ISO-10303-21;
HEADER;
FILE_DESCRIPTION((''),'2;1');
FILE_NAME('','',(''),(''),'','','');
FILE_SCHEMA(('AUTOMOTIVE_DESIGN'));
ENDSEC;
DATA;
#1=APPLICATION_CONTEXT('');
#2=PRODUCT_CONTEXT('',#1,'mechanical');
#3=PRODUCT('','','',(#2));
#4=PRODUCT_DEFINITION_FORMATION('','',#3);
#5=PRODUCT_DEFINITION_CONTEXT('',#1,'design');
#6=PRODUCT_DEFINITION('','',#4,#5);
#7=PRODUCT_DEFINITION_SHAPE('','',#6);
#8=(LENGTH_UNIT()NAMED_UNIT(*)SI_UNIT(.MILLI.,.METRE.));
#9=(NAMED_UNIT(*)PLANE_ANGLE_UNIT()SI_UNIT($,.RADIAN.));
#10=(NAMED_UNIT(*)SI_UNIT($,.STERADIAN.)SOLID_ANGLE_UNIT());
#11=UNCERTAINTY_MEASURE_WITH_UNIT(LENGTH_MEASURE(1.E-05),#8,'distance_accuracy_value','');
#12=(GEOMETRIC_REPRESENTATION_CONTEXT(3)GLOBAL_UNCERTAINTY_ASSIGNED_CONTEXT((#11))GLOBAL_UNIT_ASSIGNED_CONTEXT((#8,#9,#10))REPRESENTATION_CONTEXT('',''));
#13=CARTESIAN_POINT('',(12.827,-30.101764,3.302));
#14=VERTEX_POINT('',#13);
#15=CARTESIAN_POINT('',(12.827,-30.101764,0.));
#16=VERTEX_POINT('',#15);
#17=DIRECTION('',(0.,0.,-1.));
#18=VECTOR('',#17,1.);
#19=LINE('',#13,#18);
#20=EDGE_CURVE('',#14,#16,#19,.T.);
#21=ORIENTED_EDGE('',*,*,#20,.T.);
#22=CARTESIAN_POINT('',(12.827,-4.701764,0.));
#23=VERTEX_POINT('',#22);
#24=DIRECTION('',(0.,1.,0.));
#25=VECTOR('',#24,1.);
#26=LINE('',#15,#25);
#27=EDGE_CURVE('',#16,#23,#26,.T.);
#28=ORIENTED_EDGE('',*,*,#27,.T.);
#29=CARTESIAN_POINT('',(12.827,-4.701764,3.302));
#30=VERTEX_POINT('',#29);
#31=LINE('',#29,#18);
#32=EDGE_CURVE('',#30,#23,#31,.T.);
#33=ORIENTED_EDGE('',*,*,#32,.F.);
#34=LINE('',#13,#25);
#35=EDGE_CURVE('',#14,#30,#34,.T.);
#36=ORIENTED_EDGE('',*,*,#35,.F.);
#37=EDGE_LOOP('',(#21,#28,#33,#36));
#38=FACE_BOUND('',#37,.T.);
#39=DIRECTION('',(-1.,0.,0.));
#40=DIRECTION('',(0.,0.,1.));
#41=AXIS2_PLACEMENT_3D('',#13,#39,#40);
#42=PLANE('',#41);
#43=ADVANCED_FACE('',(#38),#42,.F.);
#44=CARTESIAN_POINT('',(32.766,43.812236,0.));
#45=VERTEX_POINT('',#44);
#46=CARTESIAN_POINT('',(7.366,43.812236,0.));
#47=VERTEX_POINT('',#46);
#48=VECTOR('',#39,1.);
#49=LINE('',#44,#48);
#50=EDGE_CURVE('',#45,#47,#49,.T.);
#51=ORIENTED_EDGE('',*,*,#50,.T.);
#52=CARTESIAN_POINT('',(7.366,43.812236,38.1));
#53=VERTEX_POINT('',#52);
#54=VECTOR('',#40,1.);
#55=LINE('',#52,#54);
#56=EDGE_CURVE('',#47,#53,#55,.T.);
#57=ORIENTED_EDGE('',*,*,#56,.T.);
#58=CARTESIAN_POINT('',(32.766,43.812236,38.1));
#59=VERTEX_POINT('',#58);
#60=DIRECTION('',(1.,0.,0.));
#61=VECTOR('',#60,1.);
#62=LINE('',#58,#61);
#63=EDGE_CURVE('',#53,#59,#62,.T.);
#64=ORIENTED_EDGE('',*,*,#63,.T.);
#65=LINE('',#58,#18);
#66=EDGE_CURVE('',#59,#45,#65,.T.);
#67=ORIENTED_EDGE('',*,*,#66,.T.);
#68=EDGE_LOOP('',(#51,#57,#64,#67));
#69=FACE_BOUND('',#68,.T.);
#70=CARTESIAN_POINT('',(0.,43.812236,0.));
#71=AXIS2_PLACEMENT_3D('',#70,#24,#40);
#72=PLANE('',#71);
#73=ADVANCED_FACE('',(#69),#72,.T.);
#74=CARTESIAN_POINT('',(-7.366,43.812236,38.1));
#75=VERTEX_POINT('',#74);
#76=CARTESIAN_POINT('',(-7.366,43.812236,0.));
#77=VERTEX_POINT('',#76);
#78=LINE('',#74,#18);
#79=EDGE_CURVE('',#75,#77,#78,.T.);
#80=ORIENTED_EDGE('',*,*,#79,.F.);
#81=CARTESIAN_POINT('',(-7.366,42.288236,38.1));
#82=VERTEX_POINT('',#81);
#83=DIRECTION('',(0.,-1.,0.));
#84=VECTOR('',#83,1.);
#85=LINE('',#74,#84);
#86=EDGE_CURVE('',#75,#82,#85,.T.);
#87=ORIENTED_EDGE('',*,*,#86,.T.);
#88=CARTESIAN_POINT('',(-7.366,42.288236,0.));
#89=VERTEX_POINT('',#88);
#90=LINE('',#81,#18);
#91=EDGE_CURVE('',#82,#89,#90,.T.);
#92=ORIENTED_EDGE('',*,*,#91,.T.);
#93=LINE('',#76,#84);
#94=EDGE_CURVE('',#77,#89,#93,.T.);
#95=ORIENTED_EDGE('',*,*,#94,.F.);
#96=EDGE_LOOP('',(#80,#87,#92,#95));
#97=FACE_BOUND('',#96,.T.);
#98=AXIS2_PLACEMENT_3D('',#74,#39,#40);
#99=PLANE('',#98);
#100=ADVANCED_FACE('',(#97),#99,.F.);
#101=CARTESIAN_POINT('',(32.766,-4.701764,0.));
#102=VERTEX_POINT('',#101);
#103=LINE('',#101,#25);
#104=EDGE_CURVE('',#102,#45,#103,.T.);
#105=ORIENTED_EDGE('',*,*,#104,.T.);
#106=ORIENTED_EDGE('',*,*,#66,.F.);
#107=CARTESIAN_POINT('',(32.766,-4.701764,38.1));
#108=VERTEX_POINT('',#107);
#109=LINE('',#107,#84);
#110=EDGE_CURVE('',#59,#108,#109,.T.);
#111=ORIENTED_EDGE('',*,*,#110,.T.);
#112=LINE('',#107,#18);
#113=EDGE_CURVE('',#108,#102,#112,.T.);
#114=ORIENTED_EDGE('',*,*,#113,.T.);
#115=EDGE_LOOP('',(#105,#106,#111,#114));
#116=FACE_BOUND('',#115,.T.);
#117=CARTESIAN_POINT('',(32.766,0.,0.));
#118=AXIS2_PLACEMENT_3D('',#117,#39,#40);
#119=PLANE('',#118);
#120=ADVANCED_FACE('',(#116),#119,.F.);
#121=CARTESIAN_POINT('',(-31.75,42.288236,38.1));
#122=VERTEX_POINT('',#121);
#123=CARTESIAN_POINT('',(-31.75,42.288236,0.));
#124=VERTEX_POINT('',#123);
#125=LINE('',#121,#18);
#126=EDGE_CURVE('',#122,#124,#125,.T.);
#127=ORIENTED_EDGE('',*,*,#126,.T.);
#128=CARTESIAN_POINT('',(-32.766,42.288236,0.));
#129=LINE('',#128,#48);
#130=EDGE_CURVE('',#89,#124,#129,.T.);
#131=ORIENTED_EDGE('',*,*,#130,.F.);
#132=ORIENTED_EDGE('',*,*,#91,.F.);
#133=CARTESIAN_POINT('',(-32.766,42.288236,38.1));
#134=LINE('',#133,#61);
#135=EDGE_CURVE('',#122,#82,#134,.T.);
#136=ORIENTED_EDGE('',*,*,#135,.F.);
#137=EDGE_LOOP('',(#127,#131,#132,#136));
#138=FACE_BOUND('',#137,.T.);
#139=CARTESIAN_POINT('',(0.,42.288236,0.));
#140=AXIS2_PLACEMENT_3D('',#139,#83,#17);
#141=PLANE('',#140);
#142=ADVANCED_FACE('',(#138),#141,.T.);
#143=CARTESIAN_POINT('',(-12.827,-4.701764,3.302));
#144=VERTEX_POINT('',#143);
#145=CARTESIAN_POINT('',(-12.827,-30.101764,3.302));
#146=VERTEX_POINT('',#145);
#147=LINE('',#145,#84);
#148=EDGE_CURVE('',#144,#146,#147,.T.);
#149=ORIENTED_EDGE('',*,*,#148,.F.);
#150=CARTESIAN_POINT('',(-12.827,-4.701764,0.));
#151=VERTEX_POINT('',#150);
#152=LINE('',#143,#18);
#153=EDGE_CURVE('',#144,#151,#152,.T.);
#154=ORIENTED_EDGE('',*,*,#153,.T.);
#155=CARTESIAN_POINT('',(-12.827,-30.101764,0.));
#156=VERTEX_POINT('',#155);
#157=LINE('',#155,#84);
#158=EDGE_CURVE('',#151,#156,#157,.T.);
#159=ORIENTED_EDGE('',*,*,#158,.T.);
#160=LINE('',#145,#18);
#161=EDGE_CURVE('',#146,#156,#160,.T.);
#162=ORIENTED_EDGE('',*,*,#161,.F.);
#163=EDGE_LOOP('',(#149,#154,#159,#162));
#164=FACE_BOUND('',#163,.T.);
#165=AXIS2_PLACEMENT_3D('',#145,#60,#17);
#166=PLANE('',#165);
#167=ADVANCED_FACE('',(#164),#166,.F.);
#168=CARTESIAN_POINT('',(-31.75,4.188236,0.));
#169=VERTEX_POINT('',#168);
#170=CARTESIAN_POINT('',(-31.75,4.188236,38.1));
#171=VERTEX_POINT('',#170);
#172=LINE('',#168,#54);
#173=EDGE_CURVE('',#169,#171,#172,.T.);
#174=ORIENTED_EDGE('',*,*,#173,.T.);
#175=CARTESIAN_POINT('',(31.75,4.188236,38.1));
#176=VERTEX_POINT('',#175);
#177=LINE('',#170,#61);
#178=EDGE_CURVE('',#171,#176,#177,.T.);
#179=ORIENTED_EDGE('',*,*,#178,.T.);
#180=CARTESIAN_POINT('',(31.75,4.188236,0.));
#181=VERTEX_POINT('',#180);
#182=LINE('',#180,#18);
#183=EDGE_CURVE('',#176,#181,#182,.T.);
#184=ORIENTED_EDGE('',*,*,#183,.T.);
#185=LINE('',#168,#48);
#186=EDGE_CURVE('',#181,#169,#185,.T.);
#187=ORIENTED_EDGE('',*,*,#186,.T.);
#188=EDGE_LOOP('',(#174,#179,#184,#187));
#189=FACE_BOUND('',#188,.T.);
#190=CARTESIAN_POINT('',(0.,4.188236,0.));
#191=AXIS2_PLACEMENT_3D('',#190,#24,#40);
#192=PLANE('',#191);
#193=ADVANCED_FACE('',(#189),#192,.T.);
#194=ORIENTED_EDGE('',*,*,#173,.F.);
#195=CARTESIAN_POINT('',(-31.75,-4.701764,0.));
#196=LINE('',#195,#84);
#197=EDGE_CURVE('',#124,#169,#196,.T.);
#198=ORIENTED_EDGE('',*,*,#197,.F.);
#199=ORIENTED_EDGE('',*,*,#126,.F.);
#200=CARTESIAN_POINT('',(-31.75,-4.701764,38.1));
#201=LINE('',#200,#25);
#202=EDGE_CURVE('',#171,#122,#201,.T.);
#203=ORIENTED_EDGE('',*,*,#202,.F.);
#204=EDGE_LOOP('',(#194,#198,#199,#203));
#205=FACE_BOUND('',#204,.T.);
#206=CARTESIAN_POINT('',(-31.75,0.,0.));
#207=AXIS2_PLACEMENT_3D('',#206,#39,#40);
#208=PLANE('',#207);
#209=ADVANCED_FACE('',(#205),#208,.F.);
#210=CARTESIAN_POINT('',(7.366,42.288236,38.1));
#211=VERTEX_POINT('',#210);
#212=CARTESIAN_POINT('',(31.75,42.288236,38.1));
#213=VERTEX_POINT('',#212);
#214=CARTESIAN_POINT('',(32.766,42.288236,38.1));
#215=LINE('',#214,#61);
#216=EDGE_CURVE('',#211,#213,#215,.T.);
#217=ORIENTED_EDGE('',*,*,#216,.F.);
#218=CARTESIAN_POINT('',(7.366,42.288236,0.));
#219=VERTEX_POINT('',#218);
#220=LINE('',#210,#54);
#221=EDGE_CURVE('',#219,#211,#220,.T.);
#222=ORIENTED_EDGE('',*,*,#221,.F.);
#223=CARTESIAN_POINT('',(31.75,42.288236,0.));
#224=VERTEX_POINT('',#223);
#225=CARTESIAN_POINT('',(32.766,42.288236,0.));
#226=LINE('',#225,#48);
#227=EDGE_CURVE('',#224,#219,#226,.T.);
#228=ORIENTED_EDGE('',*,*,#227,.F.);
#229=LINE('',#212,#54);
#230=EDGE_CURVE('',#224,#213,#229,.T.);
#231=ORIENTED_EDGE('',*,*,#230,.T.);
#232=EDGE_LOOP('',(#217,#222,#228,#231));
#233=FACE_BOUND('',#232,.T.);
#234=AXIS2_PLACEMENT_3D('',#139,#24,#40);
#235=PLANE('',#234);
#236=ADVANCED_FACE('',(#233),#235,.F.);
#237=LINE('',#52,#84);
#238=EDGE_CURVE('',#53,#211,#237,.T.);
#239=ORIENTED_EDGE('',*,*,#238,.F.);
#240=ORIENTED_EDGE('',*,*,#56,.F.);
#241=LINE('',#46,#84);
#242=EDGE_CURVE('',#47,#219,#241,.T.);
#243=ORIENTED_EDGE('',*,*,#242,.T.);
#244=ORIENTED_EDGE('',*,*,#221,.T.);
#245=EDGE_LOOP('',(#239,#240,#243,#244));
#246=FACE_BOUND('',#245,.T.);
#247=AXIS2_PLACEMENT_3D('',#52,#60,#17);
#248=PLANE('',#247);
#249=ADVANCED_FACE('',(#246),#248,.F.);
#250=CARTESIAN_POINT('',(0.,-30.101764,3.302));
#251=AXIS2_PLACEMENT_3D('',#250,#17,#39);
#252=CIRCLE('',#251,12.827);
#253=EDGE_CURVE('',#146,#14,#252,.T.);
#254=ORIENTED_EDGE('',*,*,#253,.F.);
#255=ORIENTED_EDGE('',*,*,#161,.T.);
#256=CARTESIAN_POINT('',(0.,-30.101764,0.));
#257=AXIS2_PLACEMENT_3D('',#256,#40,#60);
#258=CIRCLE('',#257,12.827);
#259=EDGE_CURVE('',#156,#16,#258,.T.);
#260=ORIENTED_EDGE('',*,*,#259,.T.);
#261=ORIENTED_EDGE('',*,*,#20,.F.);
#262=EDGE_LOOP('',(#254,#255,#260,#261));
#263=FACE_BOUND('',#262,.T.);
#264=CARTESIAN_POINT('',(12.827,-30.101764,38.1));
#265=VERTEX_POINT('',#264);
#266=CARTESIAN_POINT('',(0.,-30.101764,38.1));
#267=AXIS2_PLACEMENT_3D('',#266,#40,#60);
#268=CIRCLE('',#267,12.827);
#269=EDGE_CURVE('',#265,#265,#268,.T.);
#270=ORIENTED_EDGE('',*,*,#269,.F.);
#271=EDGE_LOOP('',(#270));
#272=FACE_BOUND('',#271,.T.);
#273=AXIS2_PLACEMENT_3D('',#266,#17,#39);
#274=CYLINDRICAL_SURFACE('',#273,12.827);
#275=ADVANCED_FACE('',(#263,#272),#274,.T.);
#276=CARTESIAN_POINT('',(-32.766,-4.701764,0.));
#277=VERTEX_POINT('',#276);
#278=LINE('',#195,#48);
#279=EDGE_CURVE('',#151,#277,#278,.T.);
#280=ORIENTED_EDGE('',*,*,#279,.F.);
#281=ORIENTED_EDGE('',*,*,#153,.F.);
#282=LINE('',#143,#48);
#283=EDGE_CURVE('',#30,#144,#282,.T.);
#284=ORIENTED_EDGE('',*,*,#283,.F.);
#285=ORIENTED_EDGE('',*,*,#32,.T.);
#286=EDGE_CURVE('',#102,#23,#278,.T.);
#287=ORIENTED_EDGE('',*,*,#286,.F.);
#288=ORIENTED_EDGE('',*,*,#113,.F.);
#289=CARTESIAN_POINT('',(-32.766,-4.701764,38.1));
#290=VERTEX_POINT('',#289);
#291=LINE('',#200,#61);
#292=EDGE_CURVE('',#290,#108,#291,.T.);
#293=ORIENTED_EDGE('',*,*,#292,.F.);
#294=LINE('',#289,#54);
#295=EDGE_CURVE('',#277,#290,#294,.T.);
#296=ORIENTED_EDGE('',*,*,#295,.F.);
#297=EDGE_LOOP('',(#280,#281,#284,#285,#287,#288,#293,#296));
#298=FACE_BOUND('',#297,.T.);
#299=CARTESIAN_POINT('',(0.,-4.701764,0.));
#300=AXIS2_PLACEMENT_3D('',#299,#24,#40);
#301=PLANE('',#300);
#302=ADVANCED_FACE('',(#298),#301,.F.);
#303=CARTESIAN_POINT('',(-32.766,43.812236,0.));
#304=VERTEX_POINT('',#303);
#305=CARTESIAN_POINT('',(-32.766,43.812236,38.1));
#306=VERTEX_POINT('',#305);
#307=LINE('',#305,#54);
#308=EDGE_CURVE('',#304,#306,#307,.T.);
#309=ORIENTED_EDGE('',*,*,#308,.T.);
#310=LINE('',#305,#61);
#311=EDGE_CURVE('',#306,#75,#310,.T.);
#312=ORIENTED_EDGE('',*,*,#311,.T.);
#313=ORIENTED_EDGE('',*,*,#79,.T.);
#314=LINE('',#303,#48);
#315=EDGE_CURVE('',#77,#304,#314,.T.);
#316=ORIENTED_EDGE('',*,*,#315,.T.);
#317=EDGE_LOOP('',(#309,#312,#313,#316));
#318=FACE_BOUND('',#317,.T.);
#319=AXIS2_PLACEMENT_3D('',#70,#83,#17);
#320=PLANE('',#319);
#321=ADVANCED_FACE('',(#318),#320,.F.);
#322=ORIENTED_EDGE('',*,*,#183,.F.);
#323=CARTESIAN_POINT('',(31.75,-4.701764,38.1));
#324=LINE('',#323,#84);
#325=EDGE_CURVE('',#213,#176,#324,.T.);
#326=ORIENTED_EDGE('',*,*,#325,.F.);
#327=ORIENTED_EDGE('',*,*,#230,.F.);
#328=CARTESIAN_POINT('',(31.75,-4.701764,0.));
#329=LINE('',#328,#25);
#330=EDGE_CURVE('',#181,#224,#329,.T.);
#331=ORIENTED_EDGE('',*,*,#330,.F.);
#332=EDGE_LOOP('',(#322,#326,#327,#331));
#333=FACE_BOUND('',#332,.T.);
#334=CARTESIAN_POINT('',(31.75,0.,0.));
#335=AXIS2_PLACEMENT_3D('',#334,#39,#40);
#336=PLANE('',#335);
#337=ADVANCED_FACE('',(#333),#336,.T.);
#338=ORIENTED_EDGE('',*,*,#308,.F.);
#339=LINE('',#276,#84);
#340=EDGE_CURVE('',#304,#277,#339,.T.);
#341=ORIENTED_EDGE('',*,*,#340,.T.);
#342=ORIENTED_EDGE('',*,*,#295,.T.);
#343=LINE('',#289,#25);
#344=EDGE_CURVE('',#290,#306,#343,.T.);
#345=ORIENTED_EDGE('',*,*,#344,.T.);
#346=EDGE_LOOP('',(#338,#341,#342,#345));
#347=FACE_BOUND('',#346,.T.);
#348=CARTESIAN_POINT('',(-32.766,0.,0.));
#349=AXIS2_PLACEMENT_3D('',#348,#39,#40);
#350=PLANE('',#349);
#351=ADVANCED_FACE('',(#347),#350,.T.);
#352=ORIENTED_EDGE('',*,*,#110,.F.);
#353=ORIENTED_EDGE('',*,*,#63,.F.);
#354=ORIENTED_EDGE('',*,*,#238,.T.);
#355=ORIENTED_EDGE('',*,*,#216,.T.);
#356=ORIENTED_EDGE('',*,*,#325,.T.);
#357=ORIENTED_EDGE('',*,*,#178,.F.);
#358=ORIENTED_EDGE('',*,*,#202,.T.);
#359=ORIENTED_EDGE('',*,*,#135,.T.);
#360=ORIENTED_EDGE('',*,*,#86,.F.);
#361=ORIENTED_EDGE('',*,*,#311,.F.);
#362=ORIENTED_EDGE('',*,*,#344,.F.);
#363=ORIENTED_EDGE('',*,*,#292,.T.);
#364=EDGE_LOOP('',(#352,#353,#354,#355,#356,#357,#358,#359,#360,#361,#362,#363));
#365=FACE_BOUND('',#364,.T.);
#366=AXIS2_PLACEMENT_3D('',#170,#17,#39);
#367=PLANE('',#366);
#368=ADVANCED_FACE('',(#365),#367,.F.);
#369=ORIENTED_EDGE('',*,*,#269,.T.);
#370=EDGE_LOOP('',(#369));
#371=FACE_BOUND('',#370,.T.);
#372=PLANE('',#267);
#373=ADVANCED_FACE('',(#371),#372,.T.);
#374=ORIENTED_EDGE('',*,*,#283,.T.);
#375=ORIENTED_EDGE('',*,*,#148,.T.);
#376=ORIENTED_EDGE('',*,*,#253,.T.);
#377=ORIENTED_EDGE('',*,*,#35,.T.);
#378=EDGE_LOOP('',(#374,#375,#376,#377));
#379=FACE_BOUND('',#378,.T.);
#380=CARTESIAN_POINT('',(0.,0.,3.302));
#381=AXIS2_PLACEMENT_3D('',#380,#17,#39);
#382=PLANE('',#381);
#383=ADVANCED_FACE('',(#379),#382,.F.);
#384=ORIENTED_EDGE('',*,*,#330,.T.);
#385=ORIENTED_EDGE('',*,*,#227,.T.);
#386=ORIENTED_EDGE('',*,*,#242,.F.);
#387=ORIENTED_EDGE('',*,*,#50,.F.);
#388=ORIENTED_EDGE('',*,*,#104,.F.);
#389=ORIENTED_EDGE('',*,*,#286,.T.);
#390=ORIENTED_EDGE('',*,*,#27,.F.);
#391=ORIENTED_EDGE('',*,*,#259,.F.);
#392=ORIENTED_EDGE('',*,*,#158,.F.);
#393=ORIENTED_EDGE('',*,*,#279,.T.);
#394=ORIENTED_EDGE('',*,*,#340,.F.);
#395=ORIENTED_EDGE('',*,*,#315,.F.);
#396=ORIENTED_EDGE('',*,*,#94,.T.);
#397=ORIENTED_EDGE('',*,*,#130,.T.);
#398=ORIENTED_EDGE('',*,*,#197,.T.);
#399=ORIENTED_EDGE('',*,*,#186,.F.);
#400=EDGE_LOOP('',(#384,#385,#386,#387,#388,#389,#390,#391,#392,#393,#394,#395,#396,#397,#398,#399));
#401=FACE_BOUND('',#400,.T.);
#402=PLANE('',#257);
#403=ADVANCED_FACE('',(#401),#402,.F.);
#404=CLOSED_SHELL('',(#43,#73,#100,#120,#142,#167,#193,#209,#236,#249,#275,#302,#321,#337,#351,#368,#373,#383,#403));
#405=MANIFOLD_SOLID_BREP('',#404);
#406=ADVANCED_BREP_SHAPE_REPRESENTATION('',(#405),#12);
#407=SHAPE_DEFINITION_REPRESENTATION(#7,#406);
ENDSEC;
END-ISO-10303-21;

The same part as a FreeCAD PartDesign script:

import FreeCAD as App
import Part
import Sketcher
Q = App.Units.Quantity


def add_polygon(sketch, points):
    """Adds a closed chain of lines whose ends are joined by coincident constraints."""
    first, n = sketch.GeometryCount, len(points)
    for a, b in zip(points, points[1:] + points[:1]):
        sketch.addGeometry(Part.LineSegment(App.Vector(*a, 0), App.Vector(*b, 0)), False)
    for i in range(n):
        sketch.addConstraint(Sketcher.Constraint("Coincident", first + i, 2, first + (i + 1) % n, 1))

doc = App.newDocument("Part")
body = doc.addObject("PartDesign::Body", "Body")

sketch1 = doc.addObject("Sketcher::SketchObject", "Sketch")
body.addObject(sketch1)
sketch1.AttachmentSupport = (doc.XY_Plane, [""])
sketch1.MapMode = "FlatFace"
sketch1.addGeometry(Part.Circle(App.Vector(0, -30, 0), App.Vector(0, 0, 1), 13), False)
sketch1.addConstraint([
    Sketcher.Constraint("PointOnObject", 0, 3, -2),
    Sketcher.Constraint("Diameter", 0, Q("1.01 in")),
    Sketcher.Constraint("DistanceY", 0, 3, -1, 1, Q("30.101764 mm")),
])
pad1 = doc.addObject("PartDesign::Pad", "Pad")
body.addObject(pad1)
pad1.Profile = sketch1
pad1.Length = Q("1.5 in")

sketch2 = doc.addObject("Sketcher::SketchObject", "Sketch001")
body.addObject(sketch2)
sketch2.AttachmentSupport = (doc.XY_Plane, [""])
sketch2.MapMode = "FlatFace"
add_polygon(sketch2, [(-13, -5), (-13, -30), (13, -30), (13, -5)])
sketch2.addConstraint([
    Sketcher.Constraint("Vertical", 0),
    Sketcher.Constraint("Horizontal", 1),
    Sketcher.Constraint("Vertical", 2),
    Sketcher.Constraint("Horizontal", 3),
    Sketcher.Constraint("DistanceY", 0, 2, 0, 1, Q("1 in")),
    Sketcher.Constraint("DistanceX", 1, 1, 1, 2, Q("1.01 in")),
    Sketcher.Constraint("DistanceX", 0, 2, -1, 1, Q("0.505 in")),
    Sketcher.Constraint("DistanceY", 0, 2, -1, 1, Q("30.101764 mm")),
])
pad2 = doc.addObject("PartDesign::Pad", "Pad001")
body.addObject(pad2)
pad2.Profile = sketch2
pad2.Length = Q("0.13 in")

sketch3 = doc.addObject("Sketcher::SketchObject", "Sketch002")
body.addObject(sketch3)
sketch3.AttachmentSupport = (doc.XZ_Plane, [""])
sketch3.MapMode = "FlatFace"
sketch3.AttachmentOffset = App.Placement(App.Vector(0, 0, 4.701764), App.Rotation())
add_polygon(sketch3, [(-32, 0), (-32, 38), (32, 38), (32, 0)])
sketch3.addConstraint([
    Sketcher.Constraint("Vertical", 0),
    Sketcher.Constraint("Horizontal", 1),
    Sketcher.Constraint("Vertical", 2),
    Sketcher.Constraint("Horizontal", 3),
    Sketcher.Constraint("Symmetric", 2, 2, 3, 2, -1, 1),
    Sketcher.Constraint("DistanceX", 1, 1, 1, 2, Q("2.5 in")),
    Sketcher.Constraint("DistanceY", 0, 1, 0, 2, Q("1.5 in")),
])
pad3 = doc.addObject("PartDesign::Pad", "Pad002")
body.addObject(pad3)
pad3.Profile = sketch3
pad3.Length = Q("0.35 in")
pad3.Reversed = True

sketch4 = doc.addObject("Sketcher::SketchObject", "Sketch003")
body.addObject(sketch4)
sketch4.AttachmentSupport = (doc.YZ_Plane, [""])
sketch4.MapMode = "FlatFace"
sketch4.AttachmentOffset = App.Placement(App.Vector(0, 0, 1.25 * 25.4), App.Rotation())
add_polygon(sketch4, [(42, 38), (-5, 38), (-5, 0), (42, 0)])
sketch4.addConstraint([
    Sketcher.Constraint("Horizontal", 0),
    Sketcher.Constraint("Vertical", 1),
    Sketcher.Constraint("Horizontal", 2),
    Sketcher.Constraint("Vertical", 3),
    Sketcher.Constraint("PointOnObject", 1, 2, -1),
    Sketcher.Constraint("DistanceY", 1, 2, 1, 1, Q("1.5 in")),
    Sketcher.Constraint("DistanceX", 0, 2, 0, 1, Q("1.85 in")),
    Sketcher.Constraint("DistanceX", 0, 2, -1, 1, Q("4.701764 mm")),
])
pad4 = doc.addObject("PartDesign::Pad", "Pad003")
body.addObject(pad4)
pad4.Profile = sketch4
pad4.Length = Q("0.04 in")

sketch5 = doc.addObject("Sketcher::SketchObject", "Sketch004")
body.addObject(sketch5)
sketch5.AttachmentSupport = (doc.YZ_Plane, [""])
sketch5.MapMode = "FlatFace"
sketch5.AttachmentOffset = App.Placement(App.Vector(0, 0, -1.25 * 25.4), App.Rotation())
add_polygon(sketch5, [(42, 0), (-5, 0), (-5, 38), (42, 38)])
sketch5.addConstraint([
    Sketcher.Constraint("Horizontal", 0),
    Sketcher.Constraint("Vertical", 1),
    Sketcher.Constraint("Horizontal", 2),
    Sketcher.Constraint("Vertical", 3),
    Sketcher.Constraint("PointOnObject", 0, 2, -1),
    Sketcher.Constraint("DistanceY", 1, 1, 1, 2, Q("1.5 in")),
    Sketcher.Constraint("DistanceX", 0, 2, 0, 1, Q("1.85 in")),
    Sketcher.Constraint("DistanceX", 0, 2, -1, 1, Q("4.701764 mm")),
])
pad5 = doc.addObject("PartDesign::Pad", "Pad004")
body.addObject(pad5)
pad5.Profile = sketch5
pad5.Length = Q("0.04 in")
pad5.Reversed = True

sketch6 = doc.addObject("Sketcher::SketchObject", "Sketch005")
body.addObject(sketch6)
sketch6.AttachmentSupport = (doc.XZ_Plane, [""])
sketch6.MapMode = "FlatFace"
sketch6.AttachmentOffset = App.Placement(App.Vector(0, 0, -42.288236), App.Rotation())
add_polygon(sketch6, [(7, 0), (7, 38), (33, 38), (33, 0)])
sketch6.addConstraint([
    Sketcher.Constraint("Vertical", 0),
    Sketcher.Constraint("Horizontal", 1),
    Sketcher.Constraint("Vertical", 2),
    Sketcher.Constraint("Horizontal", 3),
    Sketcher.Constraint("PointOnObject", 2, 2, -1),
    Sketcher.Constraint("DistanceX", 1, 1, 1, 2, Q("1 in")),
    Sketcher.Constraint("DistanceY", 0, 1, 0, 2, Q("1.5 in")),
    Sketcher.Constraint("DistanceX", -1, 1, 0, 2, Q("0.29 in")),
])
pad6 = doc.addObject("PartDesign::Pad", "Pad005")
body.addObject(pad6)
pad6.Profile = sketch6
pad6.Length = Q("0.06 in")
pad6.Reversed = True

sketch7 = doc.addObject("Sketcher::SketchObject", "Sketch006")
body.addObject(sketch7)
sketch7.AttachmentSupport = (doc.XZ_Plane, [""])
sketch7.MapMode = "FlatFace"
sketch7.AttachmentOffset = App.Placement(App.Vector(0, 0, -42.288236), App.Rotation())
add_polygon(sketch7, [(-33, 0), (-33, 38), (-7, 38), (-7, 0)])
sketch7.addConstraint([
    Sketcher.Constraint("Vertical", 0),
    Sketcher.Constraint("Horizontal", 1),
    Sketcher.Constraint("Vertical", 2),
    Sketcher.Constraint("Horizontal", 3),
    Sketcher.Constraint("PointOnObject", 2, 2, -1),
    Sketcher.Constraint("DistanceX", 1, 1, 1, 2, Q("1 in")),
    Sketcher.Constraint("DistanceY", 0, 1, 0, 2, Q("1.5 in")),
    Sketcher.Constraint("DistanceX", 0, 2, -1, 1, Q("1.29 in")),
])
pad7 = doc.addObject("PartDesign::Pad", "Pad006")
body.addObject(pad7)
pad7.Profile = sketch7
pad7.Length = Q("0.06 in")
pad7.Reversed = True

doc.recompute()
